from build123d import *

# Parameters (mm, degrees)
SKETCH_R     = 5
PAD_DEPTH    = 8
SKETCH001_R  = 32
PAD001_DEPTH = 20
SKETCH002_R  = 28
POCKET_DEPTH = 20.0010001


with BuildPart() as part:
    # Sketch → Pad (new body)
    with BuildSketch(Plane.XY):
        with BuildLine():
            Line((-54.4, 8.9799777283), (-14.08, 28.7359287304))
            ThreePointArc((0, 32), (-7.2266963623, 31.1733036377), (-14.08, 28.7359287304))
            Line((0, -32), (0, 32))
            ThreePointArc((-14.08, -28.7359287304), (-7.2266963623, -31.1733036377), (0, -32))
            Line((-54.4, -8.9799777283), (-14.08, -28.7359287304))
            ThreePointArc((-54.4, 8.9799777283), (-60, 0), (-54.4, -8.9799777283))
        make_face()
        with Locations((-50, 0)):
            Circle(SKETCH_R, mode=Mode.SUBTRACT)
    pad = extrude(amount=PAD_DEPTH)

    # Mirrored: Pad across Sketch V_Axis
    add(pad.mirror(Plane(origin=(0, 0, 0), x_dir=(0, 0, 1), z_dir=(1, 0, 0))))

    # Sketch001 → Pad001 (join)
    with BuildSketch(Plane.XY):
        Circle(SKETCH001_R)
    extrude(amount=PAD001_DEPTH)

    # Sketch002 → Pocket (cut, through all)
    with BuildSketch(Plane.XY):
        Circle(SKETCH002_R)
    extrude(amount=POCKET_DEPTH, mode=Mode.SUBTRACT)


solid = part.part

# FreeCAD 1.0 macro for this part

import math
import FreeCAD as App
import Part
import Sketcher

V = App.Vector
Q = App.Units.Quantity

doc = App.newDocument("Part")
body = doc.addObject("PartDesign::Body", "Body")

sketch1 = body.newObject("Sketcher::SketchObject", "Sketch")
sketch1.AttachmentSupport = (doc.getObject("XY_Plane"), [""])
sketch1.MapMode = "FlatFace"
sketch1.addGeometry([
    Part.LineSegment(V(-14, 29, 0), V(-54, 9, 0)),
    Part.ArcOfCircle(Part.Circle(V(-50, 0, 0), V(0, 0, 1), 10), math.radians(116), math.radians(244)),
    Part.LineSegment(V(-54, -9, 0), V(-14, -29, 0)),
    Part.ArcOfCircle(Part.Circle(V(0, 0, 0), V(0, 0, 1), 32), math.radians(-116), math.radians(-90)),
    Part.LineSegment(V(0, -32, 0), V(0, 32, 0)),
    Part.ArcOfCircle(Part.Circle(V(0, 0, 0), V(0, 0, 1), 32), math.radians(90), math.radians(116)),
    Part.Circle(V(-50, 0, 0), V(0, 0, 1), 5),
], False)
sketch1.addConstraint([
    Sketcher.Constraint("Tangent", 0, 2, 1, 1),
    Sketcher.Constraint("Tangent", 1, 2, 2, 1),
    Sketcher.Constraint("Tangent", 2, 2, 3, 1),
    Sketcher.Constraint("Coincident", 3, 2, 4, 1),
    Sketcher.Constraint("Coincident", 4, 2, 5, 1),
    Sketcher.Constraint("Tangent", 5, 2, 0, 1),
    Sketcher.Constraint("Vertical", 4),
    Sketcher.Constraint("Coincident", 3, 3, -1, 1),
    Sketcher.Constraint("Coincident", 5, 3, -1, 1),
    Sketcher.Constraint("Coincident", 6, 3, 1, 3),
    Sketcher.Constraint("Equal", 3, 5),
    Sketcher.Constraint("PointOnObject", 1, 3, -1),
    Sketcher.Constraint("PointOnObject", 3, 2, -2),
    Sketcher.Constraint("Diameter", 6, Q("10 mm")),
    Sketcher.Constraint("Radius", 1, Q("10 mm")),
    Sketcher.Constraint("Radius", 3, Q("32 mm")),
    Sketcher.Constraint("DistanceX", 1, 3, -1, 1, Q("50 mm")),
])
pad1 = body.newObject("PartDesign::Pad", "Pad")
pad1.Profile = sketch1
pad1.Length = 8
doc.recompute()

mirrored = body.newObject("PartDesign::Mirrored", "Mirrored")
mirrored.Originals = [pad1]
mirrored.MirrorPlane = (doc.getObject("YZ_Plane"), [""])
body.Tip = mirrored

sketch2 = body.newObject("Sketcher::SketchObject", "Sketch001")
sketch2.AttachmentSupport = (doc.getObject("XY_Plane"), [""])
sketch2.MapMode = "FlatFace"
sketch2.addGeometry(Part.Circle(V(0, 0, 0), V(0, 0, 1), 32), False)
sketch2.addConstraint([
    Sketcher.Constraint("Coincident", 0, 3, -1, 1),
    Sketcher.Constraint("Diameter", 0, Q("64 mm")),
])
pad2 = body.newObject("PartDesign::Pad", "Pad001")
pad2.Profile = sketch2
pad2.Length = 20

sketch3 = body.newObject("Sketcher::SketchObject", "Sketch002")
sketch3.AttachmentSupport = (doc.getObject("XY_Plane"), [""])
sketch3.MapMode = "FlatFace"
sketch3.addGeometry(Part.Circle(V(0, 0, 0), V(0, 0, 1), 28), False)
sketch3.addConstraint([
    Sketcher.Constraint("Coincident", 0, 3, -1, 1),
    Sketcher.Constraint("Diameter", 0, Q("56 mm")),
])
pocket1 = body.newObject("PartDesign::Pocket", "Pocket")
pocket1.Profile = sketch3
pocket1.Type = "ThroughAll"
pocket1.Reversed = True

doc.recompute()
